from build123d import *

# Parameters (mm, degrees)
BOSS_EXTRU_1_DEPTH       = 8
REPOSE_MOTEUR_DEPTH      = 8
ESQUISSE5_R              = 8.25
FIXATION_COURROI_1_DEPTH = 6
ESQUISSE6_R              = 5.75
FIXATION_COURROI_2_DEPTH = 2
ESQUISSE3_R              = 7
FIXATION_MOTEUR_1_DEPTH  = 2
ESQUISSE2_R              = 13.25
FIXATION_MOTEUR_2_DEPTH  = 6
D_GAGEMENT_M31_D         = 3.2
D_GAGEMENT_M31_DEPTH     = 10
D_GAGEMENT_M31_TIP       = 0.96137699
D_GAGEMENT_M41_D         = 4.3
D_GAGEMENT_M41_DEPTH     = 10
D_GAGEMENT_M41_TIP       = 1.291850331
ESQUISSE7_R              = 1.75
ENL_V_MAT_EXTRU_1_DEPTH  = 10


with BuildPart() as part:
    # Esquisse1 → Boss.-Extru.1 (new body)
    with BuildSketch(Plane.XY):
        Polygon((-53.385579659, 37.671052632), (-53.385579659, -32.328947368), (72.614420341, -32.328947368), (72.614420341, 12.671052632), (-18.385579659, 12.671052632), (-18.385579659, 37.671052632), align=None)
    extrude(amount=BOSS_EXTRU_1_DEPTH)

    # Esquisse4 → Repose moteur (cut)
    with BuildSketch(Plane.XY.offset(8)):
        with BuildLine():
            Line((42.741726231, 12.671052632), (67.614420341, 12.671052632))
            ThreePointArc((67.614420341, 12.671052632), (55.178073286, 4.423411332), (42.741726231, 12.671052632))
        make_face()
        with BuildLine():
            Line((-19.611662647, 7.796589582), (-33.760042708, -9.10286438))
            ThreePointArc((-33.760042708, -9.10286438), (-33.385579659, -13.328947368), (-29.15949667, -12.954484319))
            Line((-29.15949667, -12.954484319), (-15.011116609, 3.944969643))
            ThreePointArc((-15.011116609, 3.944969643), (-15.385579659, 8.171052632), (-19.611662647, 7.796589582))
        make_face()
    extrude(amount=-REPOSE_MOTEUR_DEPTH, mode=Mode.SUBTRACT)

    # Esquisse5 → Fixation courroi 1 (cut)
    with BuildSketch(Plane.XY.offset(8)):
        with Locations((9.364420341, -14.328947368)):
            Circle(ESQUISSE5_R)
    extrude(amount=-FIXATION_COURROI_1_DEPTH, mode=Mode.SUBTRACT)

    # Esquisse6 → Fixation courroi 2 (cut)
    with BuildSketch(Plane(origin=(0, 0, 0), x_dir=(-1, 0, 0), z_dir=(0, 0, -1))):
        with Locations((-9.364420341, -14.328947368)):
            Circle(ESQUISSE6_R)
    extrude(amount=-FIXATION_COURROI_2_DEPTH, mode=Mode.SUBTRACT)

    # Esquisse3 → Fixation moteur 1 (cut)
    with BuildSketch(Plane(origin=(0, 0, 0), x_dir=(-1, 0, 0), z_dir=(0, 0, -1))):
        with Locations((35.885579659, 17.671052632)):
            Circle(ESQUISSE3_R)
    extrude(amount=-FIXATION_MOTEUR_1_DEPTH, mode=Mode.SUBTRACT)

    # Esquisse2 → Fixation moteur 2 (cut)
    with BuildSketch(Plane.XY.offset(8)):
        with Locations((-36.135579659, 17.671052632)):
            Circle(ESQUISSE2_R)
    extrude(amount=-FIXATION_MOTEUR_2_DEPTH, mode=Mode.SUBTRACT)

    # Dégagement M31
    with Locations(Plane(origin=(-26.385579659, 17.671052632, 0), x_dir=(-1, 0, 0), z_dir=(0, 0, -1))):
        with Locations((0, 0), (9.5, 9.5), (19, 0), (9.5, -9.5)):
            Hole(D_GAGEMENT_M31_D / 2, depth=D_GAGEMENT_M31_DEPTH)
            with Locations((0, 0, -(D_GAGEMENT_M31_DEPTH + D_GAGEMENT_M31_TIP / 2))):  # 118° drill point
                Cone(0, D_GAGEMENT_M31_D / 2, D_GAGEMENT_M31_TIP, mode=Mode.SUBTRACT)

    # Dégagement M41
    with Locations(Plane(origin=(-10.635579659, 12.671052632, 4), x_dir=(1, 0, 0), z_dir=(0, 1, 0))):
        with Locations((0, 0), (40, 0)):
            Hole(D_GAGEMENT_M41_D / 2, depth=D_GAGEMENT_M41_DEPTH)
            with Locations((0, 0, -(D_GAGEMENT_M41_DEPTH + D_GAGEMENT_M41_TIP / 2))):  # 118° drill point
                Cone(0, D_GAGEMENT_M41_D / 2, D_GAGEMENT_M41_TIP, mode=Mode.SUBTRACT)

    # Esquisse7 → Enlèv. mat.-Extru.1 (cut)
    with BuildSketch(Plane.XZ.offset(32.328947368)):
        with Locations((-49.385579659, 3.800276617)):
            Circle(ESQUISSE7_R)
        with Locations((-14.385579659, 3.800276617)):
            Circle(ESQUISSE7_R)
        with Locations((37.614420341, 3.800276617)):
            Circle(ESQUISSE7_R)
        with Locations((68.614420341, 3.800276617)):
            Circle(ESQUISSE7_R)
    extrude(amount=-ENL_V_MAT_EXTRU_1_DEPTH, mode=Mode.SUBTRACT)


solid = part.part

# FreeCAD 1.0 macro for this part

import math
import FreeCAD as App
import Part
import Sketcher

V = App.Vector
Q = App.Units.Quantity

doc = App.newDocument("Part")
body = doc.addObject("PartDesign::Body", "Body")

sketch1 = body.newObject("Sketcher::SketchObject", "Sketch")
sketch1.AttachmentSupport = (doc.getObject("XY_Plane"), [""])
sketch1.MapMode = "FlatFace"
sketch1.addGeometry(Part.LineSegment(V(-53, 38, 0), V(-53, -32, 0)), False)
sketch1.addGeometry(Part.LineSegment(V(-53, -32, 0), V(73, -32, 0)), False)
sketch1.addGeometry(Part.LineSegment(V(73, -32, 0), V(73, 13, 0)), False)
sketch1.addGeometry(Part.LineSegment(V(73, 13, 0), V(-18, 13, 0)), False)
sketch1.addGeometry(Part.LineSegment(V(-18, 13, 0), V(-18, 38, 0)), False)
sketch1.addGeometry(Part.LineSegment(V(-18, 38, 0), V(-53, 38, 0)), False)
sketch1.addConstraint(Sketcher.Constraint("Coincident", 0, 2, 1, 1))
sketch1.addConstraint(Sketcher.Constraint("Coincident", 1, 2, 2, 1))
sketch1.addConstraint(Sketcher.Constraint("Coincident", 2, 2, 3, 1))
sketch1.addConstraint(Sketcher.Constraint("Coincident", 3, 2, 4, 1))
sketch1.addConstraint(Sketcher.Constraint("Coincident", 4, 2, 5, 1))
sketch1.addConstraint(Sketcher.Constraint("Coincident", 5, 2, 0, 1))
sketch1.addConstraint(Sketcher.Constraint("Vertical", 0))
sketch1.addConstraint(Sketcher.Constraint("Horizontal", 1))
sketch1.addConstraint(Sketcher.Constraint("Vertical", 2))
sketch1.addConstraint(Sketcher.Constraint("Horizontal", 3))
sketch1.addConstraint(Sketcher.Constraint("Vertical", 4))
sketch1.addConstraint(Sketcher.Constraint("Horizontal", 5))
sketch1.addConstraint(Sketcher.Constraint("DistanceX", 1, 1, 1, 2, Q("126 mm")))
sketch1.addConstraint(Sketcher.Constraint("DistanceX", 3, 2, 3, 1, Q("91 mm")))
sketch1.addConstraint(Sketcher.Constraint("DistanceY", 0, 2, 0, 1, Q("70 mm")))
sketch1.addConstraint(Sketcher.Constraint("DistanceY", 2, 1, 2, 2, Q("45 mm")))
sketch1.addConstraint(Sketcher.Constraint("DistanceX", 0, 2, -1, 1, Q("53.38558 mm")))
sketch1.addConstraint(Sketcher.Constraint("DistanceY", 0, 2, -1, 1, Q("32.328947 mm")))
pad1 = body.newObject("PartDesign::Pad", "Pad")
pad1.Profile = sketch1
pad1.Length = 8

sketch2 = body.newObject("Sketcher::SketchObject", "Sketch001")
sketch2.AttachmentSupport = (doc.getObject("XY_Plane"), [""])
sketch2.MapMode = "FlatFace"
sketch2.AttachmentOffset = App.Placement(V(0, 0, 8), App.Rotation())
sketch2.addGeometry(Part.LineSegment(V(67.6, 12.7, 0), V(42.7, 12.7, 0)), False)
sketch2.addGeometry(Part.ArcOfCircle(Part.Circle(V(55.2, 17.9, 0), V(0, 0, 1), 13.5), math.radians(-157), math.radians(-23)), False)
sketch2.addGeometry(Part.LineSegment(V(-19.6, 7.8, 0), V(-33.8, -9.1, 0)), False)
sketch2.addGeometry(Part.ArcOfCircle(Part.Circle(V(-31.5, -11, 0), V(0, 0, 1), 3), math.radians(140), math.radians(320)), False)
sketch2.addGeometry(Part.LineSegment(V(-29.2, -13, 0), V(-15, 3.9, 0)), False)
sketch2.addGeometry(Part.ArcOfCircle(Part.Circle(V(-17.3, 5.9, 0), V(0, 0, 1), 3), math.radians(-40), math.radians(140)), False)
sketch2.addConstraint(Sketcher.Constraint("Coincident", 0, 1, 1, 2))
sketch2.addConstraint(Sketcher.Constraint("Coincident", 1, 1, 0, 2))
sketch2.addConstraint(Sketcher.Constraint("Tangent", 2, 2, 3, 1))
sketch2.addConstraint(Sketcher.Constraint("Tangent", 3, 2, 4, 1))
sketch2.addConstraint(Sketcher.Constraint("Tangent", 4, 2, 5, 1))
sketch2.addConstraint(Sketcher.Constraint("Tangent", 5, 2, 2, 1))
sketch2.addConstraint(Sketcher.Constraint("Horizontal", 0))
sketch2.addConstraint(Sketcher.Constraint("Equal", 3, 5))
sketch2.addConstraint(Sketcher.Constraint("Radius", 3, Q("3 mm")))
sketch2.addConstraint(Sketcher.Constraint("Radius", 1, Q("13.5 mm")))
sketch2.addConstraint(Sketcher.Constraint("Distance", 2, Q("22.04015 mm")))
sketch2.addConstraint(Sketcher.Constraint("DistanceX", 0, 2, 0, 1, Q("24.872694 mm")))
sketch2.addConstraint(Sketcher.Constraint("DistanceY", -1, 1, 1, 3, Q("17.923411 mm")))
sketch2.addConstraint(Sketcher.Constraint("DistanceX", 3, 3, -1, 1, Q("31.45977 mm")))
sketch2.addConstraint(Sketcher.Constraint("DistanceX", 5, 3, -1, 1, Q("17.31139 mm")))
sketch2.addConstraint(Sketcher.Constraint("DistanceY", -1, 1, 5, 3, Q("5.87078 mm")))
sketch2.addConstraint(Sketcher.Constraint("DistanceX", -1, 1, 0, 1, Q("67.61442 mm")))
pocket1 = body.newObject("PartDesign::Pocket", "Pocket")
pocket1.Profile = sketch2
pocket1.Length = 8

sketch3 = body.newObject("Sketcher::SketchObject", "Sketch002")
sketch3.AttachmentSupport = (doc.getObject("XY_Plane"), [""])
sketch3.MapMode = "FlatFace"
sketch3.AttachmentOffset = App.Placement(V(0, 0, 8), App.Rotation())
sketch3.addGeometry(Part.Circle(V(9, -14, 0), V(0, 0, 1), 8), False)
sketch3.addConstraint(Sketcher.Constraint("Diameter", 0, Q("16.5 mm")))
sketch3.addConstraint(Sketcher.Constraint("DistanceX", -1, 1, 0, 3, Q("9.36442 mm")))
sketch3.addConstraint(Sketcher.Constraint("DistanceY", 0, 3, -1, 1, Q("14.328947 mm")))
pocket2 = body.newObject("PartDesign::Pocket", "Pocket001")
pocket2.Profile = sketch3
pocket2.Length = 6

sketch4 = body.newObject("Sketcher::SketchObject", "Sketch003")
sketch4.AttachmentSupport = (doc.getObject("XY_Plane"), [""])
sketch4.MapMode = "FlatFace"
sketch4.addGeometry(Part.Circle(V(9, -14, 0), V(0, 0, 1), 6), False)
sketch4.addConstraint(Sketcher.Constraint("Diameter", 0, Q("11.5 mm")))
sketch4.addConstraint(Sketcher.Constraint("DistanceX", -1, 1, 0, 3, Q("9.36442 mm")))
sketch4.addConstraint(Sketcher.Constraint("DistanceY", 0, 3, -1, 1, Q("14.328947 mm")))
pocket3 = body.newObject("PartDesign::Pocket", "Pocket002")
pocket3.Profile = sketch4
pocket3.Length = 2
pocket3.Reversed = True

sketch5 = body.newObject("Sketcher::SketchObject", "Sketch004")
sketch5.AttachmentSupport = (doc.getObject("XY_Plane"), [""])
sketch5.MapMode = "FlatFace"
sketch5.addGeometry(Part.Circle(V(-36, 18, 0), V(0, 0, 1), 7), False)
sketch5.addConstraint(Sketcher.Constraint("Diameter", 0, Q("14 mm")))
sketch5.addConstraint(Sketcher.Constraint("DistanceX", 0, 3, -1, 1, Q("35.88558 mm")))
sketch5.addConstraint(Sketcher.Constraint("DistanceY", -1, 1, 0, 3, Q("17.671053 mm")))
pocket4 = body.newObject("PartDesign::Pocket", "Pocket003")
pocket4.Profile = sketch5
pocket4.Length = 2
pocket4.Reversed = True

sketch6 = body.newObject("Sketcher::SketchObject", "Sketch005")
sketch6.AttachmentSupport = (doc.getObject("XY_Plane"), [""])
sketch6.MapMode = "FlatFace"
sketch6.AttachmentOffset = App.Placement(V(0, 0, 8), App.Rotation())
sketch6.addGeometry(Part.Circle(V(-36, 18, 0), V(0, 0, 1), 13), False)
sketch6.addConstraint(Sketcher.Constraint("Diameter", 0, Q("26.5 mm")))
sketch6.addConstraint(Sketcher.Constraint("DistanceX", 0, 3, -1, 1, Q("36.13558 mm")))
sketch6.addConstraint(Sketcher.Constraint("DistanceY", -1, 1, 0, 3, Q("17.671053 mm")))
pocket5 = body.newObject("PartDesign::Pocket", "Pocket004")
pocket5.Profile = sketch6
pocket5.Length = 6

sketch7 = body.newObject("Sketcher::SketchObject", "Sketch006")
sketch7.AttachmentSupport = (doc.getObject("XY_Plane"), [""])
sketch7.MapMode = "FlatFace"
sketch7.addGeometry(Part.Circle(V(-26.4, 17.7, 0), V(0, 0, 1), 1.6), False)
sketch7.addGeometry(Part.Circle(V(-35.9, 27.2, 0), V(0, 0, 1), 1.6), False)
sketch7.addGeometry(Part.Circle(V(-45.4, 17.7, 0), V(0, 0, 1), 1.6), False)
sketch7.addGeometry(Part.Circle(V(-35.9, 8.2, 0), V(0, 0, 1), 1.6), False)
sketch7.addConstraint(Sketcher.Constraint("Equal", 0, 1))
sketch7.addConstraint(Sketcher.Constraint("Equal", 1, 2))
sketch7.addConstraint(Sketcher.Constraint("Equal", 2, 3))
sketch7.addConstraint(Sketcher.Constraint("Horizontal", 0, 3, 2, 3))
sketch7.addConstraint(Sketcher.Constraint("Vertical", 1, 3, 3, 3))
sketch7.addConstraint(Sketcher.Constraint("Diameter", 0, Q("3.2 mm")))
sketch7.addConstraint(Sketcher.Constraint("DistanceX", 2, 3, 0, 3, Q("19 mm")))
sketch7.addConstraint(Sketcher.Constraint("DistanceY", 3, 3, 1, 3, Q("19 mm")))
sketch7.addConstraint(Sketcher.Constraint("DistanceX", 1, 3, 0, 3, Q("9.5 mm")))
sketch7.addConstraint(Sketcher.Constraint("DistanceY", 0, 3, 1, 3, Q("9.5 mm")))
sketch7.addConstraint(Sketcher.Constraint("DistanceX", 0, 3, -1, 1, Q("26.38558 mm")))
sketch7.addConstraint(Sketcher.Constraint("DistanceY", -1, 1, 0, 3, Q("17.671053 mm")))
doc.recompute()
hole = body.newObject("PartDesign::Hole", "Hole")
hole.Profile = sketch7
hole.ThreadType = "None"
hole.Diameter = 3.2
hole.DepthType = "Dimension"
hole.Depth = 10
hole.DrillPoint = "Angled"
hole.DrillPointAngle = 118
hole.Reversed = True

sketch8 = body.newObject("Sketcher::SketchObject", "Sketch007")
sketch8.AttachmentSupport = (doc.getObject("XZ_Plane"), [""])
sketch8.MapMode = "FlatFace"
sketch8.AttachmentOffset = App.Placement(V(0, 0, -12.671053), App.Rotation())
sketch8.addGeometry(Part.Circle(V(-10.6, 4, 0), V(0, 0, 1), 2.1), False)
sketch8.addGeometry(Part.Circle(V(29.4, 4, 0), V(0, 0, 1), 2.1), False)
sketch8.addConstraint(Sketcher.Constraint("Equal", 0, 1))
sketch8.addConstraint(Sketcher.Constraint("Horizontal", 0, 3, 1, 3))
sketch8.addConstraint(Sketcher.Constraint("Diameter", 0, Q("4.3 mm")))
sketch8.addConstraint(Sketcher.Constraint("DistanceY", -1, 1, 0, 3, Q("4 mm")))
sketch8.addConstraint(Sketcher.Constraint("DistanceX", 0, 3, 1, 3, Q("40 mm")))
sketch8.addConstraint(Sketcher.Constraint("DistanceX", 0, 3, -1, 1, Q("10.63558 mm")))
doc.recompute()
hole2 = body.newObject("PartDesign::Hole", "Hole001")
hole2.Profile = sketch8
hole2.ThreadType = "None"
hole2.Diameter = 4.3
hole2.DepthType = "Dimension"
hole2.Depth = 10
hole2.DrillPoint = "Angled"
hole2.DrillPointAngle = 118
hole2.Reversed = True

sketch9 = body.newObject("Sketcher::SketchObject", "Sketch008")
sketch9.AttachmentSupport = (doc.getObject("XZ_Plane"), [""])
sketch9.MapMode = "FlatFace"
sketch9.AttachmentOffset = App.Placement(V(0, 0, 32.328947), App.Rotation())
sketch9.addGeometry(Part.Circle(V(-49.4, 3.8, 0), V(0, 0, 1), 1.8), False)
sketch9.addGeometry(Part.Circle(V(-14.4, 3.8, 0), V(0, 0, 1), 1.8), False)
sketch9.addGeometry(Part.Circle(V(37.6, 3.8, 0), V(0, 0, 1), 1.8), False)
sketch9.addGeometry(Part.Circle(V(68.6, 3.8, 0), V(0, 0, 1), 1.8), False)
sketch9.addConstraint(Sketcher.Constraint("Equal", 0, 1))
sketch9.addConstraint(Sketcher.Constraint("Equal", 1, 2))
sketch9.addConstraint(Sketcher.Constraint("Equal", 2, 3))
sketch9.addConstraint(Sketcher.Constraint("Horizontal", 0, 3, 1, 3))
sketch9.addConstraint(Sketcher.Constraint("Horizontal", 1, 3, 2, 3))
sketch9.addConstraint(Sketcher.Constraint("Horizontal", 2, 3, 3, 3))
sketch9.addConstraint(Sketcher.Constraint("Diameter", 0, Q("3.5 mm")))
sketch9.addConstraint(Sketcher.Constraint("DistanceX", 0, 3, 1, 3, Q("35 mm")))
sketch9.addConstraint(Sketcher.Constraint("DistanceX", 1, 3, 2, 3, Q("52 mm")))
sketch9.addConstraint(Sketcher.Constraint("DistanceX", 2, 3, 3, 3, Q("31 mm")))
sketch9.addConstraint(Sketcher.Constraint("DistanceX", 0, 3, -1, 1, Q("49.38558 mm")))
sketch9.addConstraint(Sketcher.Constraint("DistanceY", -1, 1, 0, 3, Q("3.800277 mm")))
pocket6 = body.newObject("PartDesign::Pocket", "Pocket005")
pocket6.Profile = sketch9
pocket6.Length = 10

doc.recompute()
